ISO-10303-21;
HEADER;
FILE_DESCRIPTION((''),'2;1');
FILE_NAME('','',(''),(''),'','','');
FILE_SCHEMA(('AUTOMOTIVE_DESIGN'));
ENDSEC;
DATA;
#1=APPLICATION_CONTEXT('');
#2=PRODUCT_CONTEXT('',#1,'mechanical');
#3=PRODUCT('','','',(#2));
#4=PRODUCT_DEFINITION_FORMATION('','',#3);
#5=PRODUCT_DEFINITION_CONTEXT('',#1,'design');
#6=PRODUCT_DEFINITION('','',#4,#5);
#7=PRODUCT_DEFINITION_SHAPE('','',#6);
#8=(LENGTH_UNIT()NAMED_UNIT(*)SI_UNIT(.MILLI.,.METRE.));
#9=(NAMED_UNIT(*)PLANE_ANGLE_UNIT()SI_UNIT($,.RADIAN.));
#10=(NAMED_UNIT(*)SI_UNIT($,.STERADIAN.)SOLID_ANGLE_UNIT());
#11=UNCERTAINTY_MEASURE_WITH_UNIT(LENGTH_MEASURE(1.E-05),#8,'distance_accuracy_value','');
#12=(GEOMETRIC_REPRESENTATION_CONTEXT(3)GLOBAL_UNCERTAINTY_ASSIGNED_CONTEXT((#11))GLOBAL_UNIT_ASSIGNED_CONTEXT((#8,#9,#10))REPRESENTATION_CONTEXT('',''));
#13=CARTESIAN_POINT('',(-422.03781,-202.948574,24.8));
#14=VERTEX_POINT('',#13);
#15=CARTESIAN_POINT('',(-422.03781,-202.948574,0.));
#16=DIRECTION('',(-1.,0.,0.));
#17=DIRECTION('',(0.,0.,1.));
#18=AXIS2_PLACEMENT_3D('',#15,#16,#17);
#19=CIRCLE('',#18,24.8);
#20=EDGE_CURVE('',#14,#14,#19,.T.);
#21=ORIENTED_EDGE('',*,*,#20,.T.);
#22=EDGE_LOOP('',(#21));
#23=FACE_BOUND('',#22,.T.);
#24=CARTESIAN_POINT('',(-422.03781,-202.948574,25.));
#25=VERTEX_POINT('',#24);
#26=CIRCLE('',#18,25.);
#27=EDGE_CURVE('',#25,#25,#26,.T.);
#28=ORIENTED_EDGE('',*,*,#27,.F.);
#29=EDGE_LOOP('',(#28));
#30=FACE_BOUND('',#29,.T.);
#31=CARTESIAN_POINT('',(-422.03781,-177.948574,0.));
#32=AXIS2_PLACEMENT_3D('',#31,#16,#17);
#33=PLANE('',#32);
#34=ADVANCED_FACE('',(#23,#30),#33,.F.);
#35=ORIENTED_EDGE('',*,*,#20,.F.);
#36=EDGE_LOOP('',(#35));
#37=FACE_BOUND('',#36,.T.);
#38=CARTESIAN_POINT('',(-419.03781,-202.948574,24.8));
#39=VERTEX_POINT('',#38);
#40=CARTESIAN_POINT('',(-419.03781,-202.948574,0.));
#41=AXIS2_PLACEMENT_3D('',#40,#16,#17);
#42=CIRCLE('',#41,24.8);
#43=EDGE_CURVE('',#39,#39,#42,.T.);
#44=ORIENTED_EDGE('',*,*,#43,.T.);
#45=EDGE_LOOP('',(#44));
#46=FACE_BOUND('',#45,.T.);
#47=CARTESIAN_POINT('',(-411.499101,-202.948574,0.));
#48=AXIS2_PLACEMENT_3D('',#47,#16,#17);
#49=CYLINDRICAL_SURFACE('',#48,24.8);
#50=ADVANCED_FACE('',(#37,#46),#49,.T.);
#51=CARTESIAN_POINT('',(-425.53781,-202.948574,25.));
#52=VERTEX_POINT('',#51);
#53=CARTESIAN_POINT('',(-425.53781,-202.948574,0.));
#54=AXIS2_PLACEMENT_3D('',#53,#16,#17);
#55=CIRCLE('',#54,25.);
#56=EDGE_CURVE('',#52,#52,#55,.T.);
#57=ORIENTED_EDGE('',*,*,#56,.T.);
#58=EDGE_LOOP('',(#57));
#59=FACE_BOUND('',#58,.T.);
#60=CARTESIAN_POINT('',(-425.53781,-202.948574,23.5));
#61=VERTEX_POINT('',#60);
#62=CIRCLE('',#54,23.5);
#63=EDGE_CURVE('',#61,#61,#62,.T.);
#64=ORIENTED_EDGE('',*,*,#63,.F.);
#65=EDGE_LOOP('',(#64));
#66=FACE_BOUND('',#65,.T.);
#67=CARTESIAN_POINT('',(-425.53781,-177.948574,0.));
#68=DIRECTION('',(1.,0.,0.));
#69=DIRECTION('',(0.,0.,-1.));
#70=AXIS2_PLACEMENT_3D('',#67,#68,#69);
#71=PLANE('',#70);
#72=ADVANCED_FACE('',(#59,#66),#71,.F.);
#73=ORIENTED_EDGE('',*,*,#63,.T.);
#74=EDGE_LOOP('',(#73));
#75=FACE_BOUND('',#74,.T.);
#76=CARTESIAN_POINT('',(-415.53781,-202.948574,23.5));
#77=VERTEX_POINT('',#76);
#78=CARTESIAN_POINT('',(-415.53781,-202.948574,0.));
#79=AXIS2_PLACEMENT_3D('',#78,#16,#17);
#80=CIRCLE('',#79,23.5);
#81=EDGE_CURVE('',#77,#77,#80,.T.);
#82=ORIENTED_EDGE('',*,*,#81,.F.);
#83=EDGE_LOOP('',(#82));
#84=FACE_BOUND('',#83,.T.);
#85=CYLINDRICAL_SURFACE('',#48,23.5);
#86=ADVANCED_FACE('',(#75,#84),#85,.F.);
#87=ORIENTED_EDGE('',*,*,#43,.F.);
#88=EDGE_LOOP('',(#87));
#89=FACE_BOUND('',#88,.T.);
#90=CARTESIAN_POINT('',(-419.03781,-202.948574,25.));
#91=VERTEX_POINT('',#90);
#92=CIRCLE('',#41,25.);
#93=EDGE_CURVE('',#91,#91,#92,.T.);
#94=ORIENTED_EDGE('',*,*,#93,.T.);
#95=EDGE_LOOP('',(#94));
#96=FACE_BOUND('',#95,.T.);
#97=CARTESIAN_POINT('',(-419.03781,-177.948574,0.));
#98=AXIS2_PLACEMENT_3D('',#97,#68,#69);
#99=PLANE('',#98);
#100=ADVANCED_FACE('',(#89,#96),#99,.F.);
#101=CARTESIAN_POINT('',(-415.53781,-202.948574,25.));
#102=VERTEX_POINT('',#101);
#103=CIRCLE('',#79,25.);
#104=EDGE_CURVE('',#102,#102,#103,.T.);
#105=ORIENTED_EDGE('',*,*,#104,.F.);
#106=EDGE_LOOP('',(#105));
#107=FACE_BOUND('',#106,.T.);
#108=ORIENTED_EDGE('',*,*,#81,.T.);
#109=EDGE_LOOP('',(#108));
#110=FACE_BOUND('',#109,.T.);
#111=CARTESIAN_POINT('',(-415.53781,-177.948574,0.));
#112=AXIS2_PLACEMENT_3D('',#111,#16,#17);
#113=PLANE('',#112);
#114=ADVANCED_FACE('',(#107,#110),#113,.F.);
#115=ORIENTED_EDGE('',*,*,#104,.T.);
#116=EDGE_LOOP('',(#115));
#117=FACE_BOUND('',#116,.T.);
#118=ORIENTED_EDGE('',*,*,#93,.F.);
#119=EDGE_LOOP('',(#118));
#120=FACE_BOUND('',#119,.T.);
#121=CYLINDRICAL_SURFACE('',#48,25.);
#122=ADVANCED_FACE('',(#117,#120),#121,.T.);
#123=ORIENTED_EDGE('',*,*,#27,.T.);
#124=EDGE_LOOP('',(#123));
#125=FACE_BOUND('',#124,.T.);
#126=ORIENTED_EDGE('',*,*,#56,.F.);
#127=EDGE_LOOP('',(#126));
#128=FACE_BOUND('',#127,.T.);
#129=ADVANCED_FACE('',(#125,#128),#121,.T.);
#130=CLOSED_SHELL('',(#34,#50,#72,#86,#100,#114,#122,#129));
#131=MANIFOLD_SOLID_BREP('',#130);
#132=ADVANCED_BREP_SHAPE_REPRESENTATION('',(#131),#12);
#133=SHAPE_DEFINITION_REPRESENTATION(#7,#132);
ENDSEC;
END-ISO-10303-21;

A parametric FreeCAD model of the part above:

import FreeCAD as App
import Part
import Sketcher

V = App.Vector


def add_polygon(sketch, points):
    """Adds a closed chain of lines whose ends are joined by coincident constraints."""
    first, n = sketch.GeometryCount, len(points)
    for a, b in zip(points, points[1:] + points[:1]):
        sketch.addGeometry(Part.LineSegment(App.Vector(*a, 0), App.Vector(*b, 0)), False)
    for i in range(n):
        sketch.addConstraint(Sketcher.Constraint("Coincident", first + i, 2, first + (i + 1) % n, 1))

doc = App.newDocument("Part")
params = doc.addObject("Spreadsheet::Sheet", "Params")
for row, (alias, value) in enumerate([
    ("sketch1_width", "10 mm"),
    ("sketch1_width2", "3 mm"),
    ("sketch1_height", "1.5 mm"),
    ("sketch1_height2", "0.2 mm"),
    ("revolution_angle", "360 deg"),
], start=1):
    params.set(f"A{row}", alias)
    params.set(f"B{row}", "=" + value)
    params.setAlias(f"B{row}", alias)

body = doc.addObject("PartDesign::Body", "Body")

# Sketch on XY plane
sketch1 = body.newObject("Sketcher::SketchObject", "Sketch")
sketch1.AttachmentSupport = (doc.getObject("XY_Plane"), [""])
sketch1.MapMode = "FlatFace"
add_polygon(sketch1, [(-422.04, -177.95), (-425.54, -177.95), (-425.54, -179.45), (-415.54, -179.45), (-415.54, -177.95), (-419.04, -177.95), (-419.04, -178.15), (-422.04, -178.15)])  # lines 0-7
sketch1.addGeometry(Part.LineSegment(V(-425.54, -202.95, 0), V(-415.54, -202.95, 0)), True)  # axis
sketch1.addConstraint([
    Sketcher.Constraint("Horizontal", 0),
    Sketcher.Constraint("Vertical", 1),
    Sketcher.Constraint("Horizontal", 2),
    Sketcher.Constraint("Vertical", 3),
    Sketcher.Constraint("Horizontal", 4),
    Sketcher.Constraint("Vertical", 5),
    Sketcher.Constraint("Horizontal", 6),
    Sketcher.Constraint("Vertical", 7),
    Sketcher.Constraint("Horizontal", 8),
    Sketcher.Constraint("Horizontal", 0, 2, 3, 2),
    Sketcher.Constraint("Vertical", 1, 2, 8, 1),
    Sketcher.Constraint("Vertical", 3, 2, 8, 2),
    Sketcher.Constraint("Equal", 0, 4),
    Sketcher.Constraint("DistanceX", 2, 1, 2, 2, 10.0),
    Sketcher.Constraint("DistanceX", 6, 2, 6, 1, 3.0),
    Sketcher.Constraint("DistanceY", 1, 2, 1, 1, 1.5),
    Sketcher.Constraint("DistanceY", 5, 2, 5, 1, 0.2),
    Sketcher.Constraint("DistanceY", 8, 1, 0, 2, 25.0),
    Sketcher.Constraint("DistanceX", 0, 2, -1, 1, 425.53781),
    Sketcher.Constraint("DistanceY", 0, 2, -1, 1, 177.948574),
])
sketch1.setExpression("Constraints[21]", "Params.sketch1_width")
sketch1.setExpression("Constraints[22]", "Params.sketch1_width2")
sketch1.setExpression("Constraints[23]", "Params.sketch1_height")
sketch1.setExpression("Constraints[24]", "Params.sketch1_height2")
revolution = body.newObject("PartDesign::Revolution", "Revolution")
revolution.Profile = sketch1
revolution.ReferenceAxis = (sketch1, ["Axis0"])
revolution.setExpression("Angle", "Params.revolution_angle")

doc.recompute()
